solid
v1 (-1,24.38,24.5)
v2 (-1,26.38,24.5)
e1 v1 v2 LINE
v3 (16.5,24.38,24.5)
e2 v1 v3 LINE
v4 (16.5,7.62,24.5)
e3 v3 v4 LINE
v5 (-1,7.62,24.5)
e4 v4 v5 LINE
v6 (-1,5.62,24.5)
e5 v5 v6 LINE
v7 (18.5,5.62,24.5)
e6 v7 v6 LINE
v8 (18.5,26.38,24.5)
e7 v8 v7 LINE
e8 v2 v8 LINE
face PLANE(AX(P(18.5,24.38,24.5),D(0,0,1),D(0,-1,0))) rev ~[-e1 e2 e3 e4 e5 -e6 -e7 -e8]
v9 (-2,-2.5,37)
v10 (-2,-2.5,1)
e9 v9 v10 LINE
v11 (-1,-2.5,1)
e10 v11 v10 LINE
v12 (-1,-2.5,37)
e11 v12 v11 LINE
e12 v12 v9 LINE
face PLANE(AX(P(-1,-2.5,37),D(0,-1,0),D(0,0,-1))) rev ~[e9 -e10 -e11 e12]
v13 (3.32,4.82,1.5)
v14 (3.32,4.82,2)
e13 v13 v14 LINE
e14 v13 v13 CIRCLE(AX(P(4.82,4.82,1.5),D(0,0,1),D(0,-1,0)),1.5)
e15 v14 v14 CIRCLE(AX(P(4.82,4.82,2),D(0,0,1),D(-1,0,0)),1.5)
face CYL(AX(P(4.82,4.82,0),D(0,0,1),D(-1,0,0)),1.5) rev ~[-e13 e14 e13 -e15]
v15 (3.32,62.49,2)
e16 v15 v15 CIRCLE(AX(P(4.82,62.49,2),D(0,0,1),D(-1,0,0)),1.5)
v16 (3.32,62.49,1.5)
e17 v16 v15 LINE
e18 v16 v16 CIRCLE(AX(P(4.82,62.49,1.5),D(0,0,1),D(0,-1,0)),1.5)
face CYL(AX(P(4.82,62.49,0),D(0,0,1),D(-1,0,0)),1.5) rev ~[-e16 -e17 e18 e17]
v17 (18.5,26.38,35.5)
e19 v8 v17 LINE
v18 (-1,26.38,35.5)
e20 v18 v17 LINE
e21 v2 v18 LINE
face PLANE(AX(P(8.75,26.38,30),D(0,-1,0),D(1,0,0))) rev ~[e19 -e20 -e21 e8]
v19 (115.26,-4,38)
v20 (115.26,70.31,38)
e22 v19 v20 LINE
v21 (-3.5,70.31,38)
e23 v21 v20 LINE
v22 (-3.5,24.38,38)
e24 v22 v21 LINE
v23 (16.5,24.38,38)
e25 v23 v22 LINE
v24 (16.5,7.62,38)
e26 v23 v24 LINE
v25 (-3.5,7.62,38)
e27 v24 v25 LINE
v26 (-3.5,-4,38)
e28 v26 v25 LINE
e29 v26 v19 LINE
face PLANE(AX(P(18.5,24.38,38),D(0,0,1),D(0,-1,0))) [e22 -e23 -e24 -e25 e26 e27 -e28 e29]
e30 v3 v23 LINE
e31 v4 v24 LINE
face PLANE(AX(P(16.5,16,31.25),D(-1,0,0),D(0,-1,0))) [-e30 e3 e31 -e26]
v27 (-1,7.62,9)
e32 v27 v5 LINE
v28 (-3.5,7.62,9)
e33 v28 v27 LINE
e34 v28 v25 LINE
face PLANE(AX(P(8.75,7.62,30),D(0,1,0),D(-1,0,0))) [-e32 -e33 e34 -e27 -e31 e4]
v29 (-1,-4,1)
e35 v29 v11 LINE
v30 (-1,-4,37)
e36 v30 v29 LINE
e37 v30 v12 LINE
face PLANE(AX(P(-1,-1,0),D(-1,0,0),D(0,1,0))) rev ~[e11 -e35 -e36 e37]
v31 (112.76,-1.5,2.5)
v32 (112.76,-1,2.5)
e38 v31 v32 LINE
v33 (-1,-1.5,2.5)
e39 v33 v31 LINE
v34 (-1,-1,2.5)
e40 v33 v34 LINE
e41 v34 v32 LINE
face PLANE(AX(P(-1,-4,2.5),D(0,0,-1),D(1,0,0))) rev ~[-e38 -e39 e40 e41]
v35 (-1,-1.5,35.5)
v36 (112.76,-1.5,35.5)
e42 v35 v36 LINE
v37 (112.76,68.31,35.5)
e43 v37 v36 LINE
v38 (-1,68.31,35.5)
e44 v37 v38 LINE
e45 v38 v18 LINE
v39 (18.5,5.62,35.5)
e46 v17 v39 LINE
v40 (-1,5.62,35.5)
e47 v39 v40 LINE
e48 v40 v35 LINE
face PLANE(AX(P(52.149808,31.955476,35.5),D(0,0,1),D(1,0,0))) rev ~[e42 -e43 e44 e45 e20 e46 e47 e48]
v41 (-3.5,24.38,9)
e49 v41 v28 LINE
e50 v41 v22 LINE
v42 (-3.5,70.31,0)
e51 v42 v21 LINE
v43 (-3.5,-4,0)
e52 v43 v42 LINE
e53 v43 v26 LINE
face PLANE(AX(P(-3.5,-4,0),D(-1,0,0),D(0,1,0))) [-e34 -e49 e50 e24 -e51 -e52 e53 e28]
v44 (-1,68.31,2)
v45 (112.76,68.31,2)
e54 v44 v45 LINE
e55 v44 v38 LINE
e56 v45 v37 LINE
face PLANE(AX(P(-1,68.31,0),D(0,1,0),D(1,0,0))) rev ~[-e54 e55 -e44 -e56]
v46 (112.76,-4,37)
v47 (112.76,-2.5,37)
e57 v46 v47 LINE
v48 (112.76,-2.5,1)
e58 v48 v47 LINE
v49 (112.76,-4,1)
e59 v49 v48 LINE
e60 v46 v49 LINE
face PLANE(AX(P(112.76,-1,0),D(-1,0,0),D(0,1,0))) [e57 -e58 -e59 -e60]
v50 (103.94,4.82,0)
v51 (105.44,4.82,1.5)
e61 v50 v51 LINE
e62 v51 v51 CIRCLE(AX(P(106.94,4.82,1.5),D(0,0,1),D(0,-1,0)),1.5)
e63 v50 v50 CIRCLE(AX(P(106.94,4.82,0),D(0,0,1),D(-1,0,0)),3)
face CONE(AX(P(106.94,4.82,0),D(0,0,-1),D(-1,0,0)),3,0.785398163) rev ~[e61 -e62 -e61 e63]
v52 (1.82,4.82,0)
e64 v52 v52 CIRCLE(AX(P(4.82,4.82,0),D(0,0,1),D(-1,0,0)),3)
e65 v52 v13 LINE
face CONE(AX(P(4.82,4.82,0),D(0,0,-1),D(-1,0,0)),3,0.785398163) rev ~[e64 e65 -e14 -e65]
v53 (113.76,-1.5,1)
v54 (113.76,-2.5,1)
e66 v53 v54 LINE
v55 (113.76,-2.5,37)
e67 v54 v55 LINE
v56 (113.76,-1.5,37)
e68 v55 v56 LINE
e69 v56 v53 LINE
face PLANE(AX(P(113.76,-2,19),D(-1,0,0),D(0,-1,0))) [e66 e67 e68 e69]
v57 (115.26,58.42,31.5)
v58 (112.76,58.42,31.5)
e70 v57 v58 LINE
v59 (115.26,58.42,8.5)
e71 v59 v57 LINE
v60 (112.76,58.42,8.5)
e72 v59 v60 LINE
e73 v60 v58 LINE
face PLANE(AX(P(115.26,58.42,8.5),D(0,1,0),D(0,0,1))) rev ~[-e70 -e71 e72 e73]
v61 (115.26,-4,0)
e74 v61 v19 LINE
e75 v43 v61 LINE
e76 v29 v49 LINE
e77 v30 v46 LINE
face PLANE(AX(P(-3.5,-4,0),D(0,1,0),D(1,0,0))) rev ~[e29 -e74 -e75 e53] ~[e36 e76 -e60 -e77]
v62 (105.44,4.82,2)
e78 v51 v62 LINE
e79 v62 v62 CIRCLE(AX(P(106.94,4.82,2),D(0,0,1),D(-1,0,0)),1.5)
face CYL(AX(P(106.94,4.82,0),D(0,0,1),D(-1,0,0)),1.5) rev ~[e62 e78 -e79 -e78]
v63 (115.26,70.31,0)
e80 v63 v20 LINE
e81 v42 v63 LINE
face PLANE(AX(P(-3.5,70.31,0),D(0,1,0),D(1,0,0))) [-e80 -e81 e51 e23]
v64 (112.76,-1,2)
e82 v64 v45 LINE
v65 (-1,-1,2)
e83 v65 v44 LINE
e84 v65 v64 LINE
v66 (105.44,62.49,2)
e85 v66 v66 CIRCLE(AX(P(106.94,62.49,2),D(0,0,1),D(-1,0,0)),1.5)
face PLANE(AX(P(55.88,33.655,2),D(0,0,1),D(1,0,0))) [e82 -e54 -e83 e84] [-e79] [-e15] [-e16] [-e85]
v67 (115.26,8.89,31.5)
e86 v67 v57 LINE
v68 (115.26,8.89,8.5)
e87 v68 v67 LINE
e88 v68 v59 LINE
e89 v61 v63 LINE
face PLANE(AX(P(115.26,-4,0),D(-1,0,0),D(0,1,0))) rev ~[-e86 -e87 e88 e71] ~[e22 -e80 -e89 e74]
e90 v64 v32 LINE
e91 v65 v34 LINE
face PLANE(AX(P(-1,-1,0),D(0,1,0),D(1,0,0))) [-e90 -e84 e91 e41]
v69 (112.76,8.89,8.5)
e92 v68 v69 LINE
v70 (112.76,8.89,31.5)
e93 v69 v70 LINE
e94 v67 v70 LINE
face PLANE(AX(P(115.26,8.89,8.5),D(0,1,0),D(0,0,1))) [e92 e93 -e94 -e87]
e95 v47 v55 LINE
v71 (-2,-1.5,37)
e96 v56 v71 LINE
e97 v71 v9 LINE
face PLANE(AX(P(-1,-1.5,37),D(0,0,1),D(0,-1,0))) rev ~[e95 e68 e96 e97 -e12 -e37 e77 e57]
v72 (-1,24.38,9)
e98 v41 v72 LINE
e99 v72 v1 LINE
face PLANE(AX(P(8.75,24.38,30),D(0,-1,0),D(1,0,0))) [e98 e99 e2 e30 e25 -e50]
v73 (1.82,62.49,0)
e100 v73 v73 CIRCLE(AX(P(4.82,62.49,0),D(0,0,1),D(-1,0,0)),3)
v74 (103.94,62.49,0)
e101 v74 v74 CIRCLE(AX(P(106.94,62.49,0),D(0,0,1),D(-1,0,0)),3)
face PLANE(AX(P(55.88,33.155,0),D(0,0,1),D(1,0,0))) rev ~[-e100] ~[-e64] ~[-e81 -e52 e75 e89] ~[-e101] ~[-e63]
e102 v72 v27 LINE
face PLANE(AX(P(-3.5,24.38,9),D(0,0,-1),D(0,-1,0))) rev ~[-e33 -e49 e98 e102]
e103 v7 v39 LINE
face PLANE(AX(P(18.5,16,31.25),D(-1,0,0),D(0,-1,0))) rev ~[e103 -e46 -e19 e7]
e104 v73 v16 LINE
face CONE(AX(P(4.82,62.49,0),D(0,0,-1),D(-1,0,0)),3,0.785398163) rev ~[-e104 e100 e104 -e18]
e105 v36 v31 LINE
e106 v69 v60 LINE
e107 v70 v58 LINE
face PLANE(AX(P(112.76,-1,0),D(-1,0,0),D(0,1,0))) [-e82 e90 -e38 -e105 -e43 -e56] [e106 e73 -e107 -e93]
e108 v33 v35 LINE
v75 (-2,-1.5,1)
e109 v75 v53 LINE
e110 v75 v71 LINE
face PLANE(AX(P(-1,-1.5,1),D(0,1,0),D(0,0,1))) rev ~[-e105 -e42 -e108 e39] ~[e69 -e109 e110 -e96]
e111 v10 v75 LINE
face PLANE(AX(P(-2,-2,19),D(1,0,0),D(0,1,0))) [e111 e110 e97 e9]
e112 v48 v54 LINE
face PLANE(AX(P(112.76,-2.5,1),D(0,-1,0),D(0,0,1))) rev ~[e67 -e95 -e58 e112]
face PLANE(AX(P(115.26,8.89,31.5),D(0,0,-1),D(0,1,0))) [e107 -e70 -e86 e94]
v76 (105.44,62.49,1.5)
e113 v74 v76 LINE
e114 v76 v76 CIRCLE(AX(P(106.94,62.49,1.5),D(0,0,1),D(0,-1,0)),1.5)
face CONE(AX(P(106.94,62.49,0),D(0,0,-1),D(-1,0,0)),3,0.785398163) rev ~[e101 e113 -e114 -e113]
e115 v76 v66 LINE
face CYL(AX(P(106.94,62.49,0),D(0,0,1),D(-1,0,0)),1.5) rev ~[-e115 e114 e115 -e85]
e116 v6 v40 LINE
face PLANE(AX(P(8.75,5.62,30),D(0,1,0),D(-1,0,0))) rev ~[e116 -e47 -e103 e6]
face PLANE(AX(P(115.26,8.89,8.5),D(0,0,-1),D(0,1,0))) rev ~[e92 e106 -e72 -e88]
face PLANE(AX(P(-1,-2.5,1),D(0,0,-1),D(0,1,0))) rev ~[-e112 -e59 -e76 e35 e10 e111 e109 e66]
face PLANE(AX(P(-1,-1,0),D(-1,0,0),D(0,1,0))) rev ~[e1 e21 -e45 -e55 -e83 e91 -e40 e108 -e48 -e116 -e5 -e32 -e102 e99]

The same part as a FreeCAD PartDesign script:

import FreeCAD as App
import Part
import Sketcher
from FreeCAD import Vector
Q = App.Units.Quantity


def add_polygon(sketch, points):
    """Adds a closed chain of lines whose ends are joined by coincident constraints."""
    first, n = sketch.GeometryCount, len(points)
    for a, b in zip(points, points[1:] + points[:1]):
        sketch.addGeometry(Part.LineSegment(App.Vector(*a, 0), App.Vector(*b, 0)), False)
    for i in range(n):
        sketch.addConstraint(Sketcher.Constraint("Coincident", first + i, 2, first + (i + 1) % n, 1))

doc = App.newDocument("Part")
body = doc.addObject("PartDesign::Body", "Body")

sketch1 = body.newObject("Sketcher::SketchObject", "Sketch")
sketch1.AttachmentSupport = (doc.getObject("XY_Plane"), [""])
sketch1.MapMode = "FlatFace"
add_polygon(sketch1, [(-1, 68), (-1, -1), (113, -1), (113, 68)])
sketch1.addConstraint(Sketcher.Constraint("Vertical", 0))
sketch1.addConstraint(Sketcher.Constraint("Horizontal", 1))
sketch1.addConstraint(Sketcher.Constraint("Vertical", 2))
sketch1.addConstraint(Sketcher.Constraint("Horizontal", 3))
sketch1.addConstraint(Sketcher.Constraint("DistanceX", 0, 2, -1, 1, Q("1 mm")))
sketch1.addConstraint(Sketcher.Constraint("DistanceY", 0, 2, -1, 1, Q("1 mm")))
sketch1.addConstraint(Sketcher.Constraint("DistanceX", 1, 1, 1, 2, Q("113.76 mm")))
sketch1.addConstraint(Sketcher.Constraint("DistanceY", 0, 2, 0, 1, Q("69.31 mm")))
pad1 = body.newObject("PartDesign::Pad", "Pad")
pad1.Profile = sketch1
pad1.Length = 2

sketch2 = body.newObject("Sketcher::SketchObject", "Sketch001")
sketch2.AttachmentSupport = (doc.getObject("XY_Plane"), [""])
sketch2.MapMode = "FlatFace"
add_polygon(sketch2, [(-4, 70), (-4, -4), (115, -4), (115, 70)])
add_polygon(sketch2, [(113, -1), (-1, -1), (-1, 68), (113, 68)])
sketch2.addConstraint(Sketcher.Constraint("Vertical", 0))
sketch2.addConstraint(Sketcher.Constraint("Horizontal", 1))
sketch2.addConstraint(Sketcher.Constraint("Vertical", 2))
sketch2.addConstraint(Sketcher.Constraint("Horizontal", 3))
sketch2.addConstraint(Sketcher.Constraint("Horizontal", 4))
sketch2.addConstraint(Sketcher.Constraint("Vertical", 5))
sketch2.addConstraint(Sketcher.Constraint("Horizontal", 6))
sketch2.addConstraint(Sketcher.Constraint("Vertical", 7))
sketch2.addConstraint(Sketcher.Constraint("DistanceY", 0, 2, -1, 1, Q("4 mm")))
sketch2.addConstraint(Sketcher.Constraint("DistanceX", 4, 2, -1, 1, Q("1 mm")))
sketch2.addConstraint(Sketcher.Constraint("DistanceY", 4, 2, -1, 1, Q("1 mm")))
sketch2.addConstraint(Sketcher.Constraint("DistanceY", 5, 2, 3, 2, Q("2 mm")))
sketch2.addConstraint(Sketcher.Constraint("DistanceX", 1, 1, 1, 2, Q("118.76 mm")))
sketch2.addConstraint(Sketcher.Constraint("DistanceX", 4, 2, 4, 1, Q("113.76 mm")))
sketch2.addConstraint(Sketcher.Constraint("DistanceY", 0, 2, 0, 1, Q("74.31 mm")))
sketch2.addConstraint(Sketcher.Constraint("DistanceX", 0, 2, -1, 1, Q("3.5 mm")))
pad2 = body.newObject("PartDesign::Pad", "Pad001")
pad2.Profile = sketch2
pad2.Length = 38

sketch3 = body.newObject("Sketcher::SketchObject", "Sketch002")
sketch3.AttachmentSupport = (doc.getObject("YZ_Plane"), [""])
sketch3.MapMode = "FlatFace"
sketch3.AttachmentOffset = App.Placement(Vector(0, 0, 115.26), App.Rotation())
add_polygon(sketch3, [(9, 32), (9, 8), (58, 8), (58, 32)])
sketch3.addConstraint(Sketcher.Constraint("Vertical", 0))
sketch3.addConstraint(Sketcher.Constraint("Horizontal", 1))
sketch3.addConstraint(Sketcher.Constraint("Vertical", 2))
sketch3.addConstraint(Sketcher.Constraint("Horizontal", 3))
sketch3.addConstraint(Sketcher.Constraint("DistanceY", 0, 2, 0, 1, Q("23 mm")))
sketch3.addConstraint(Sketcher.Constraint("DistanceX", 1, 1, 1, 2, Q("49.53 mm")))
sketch3.addConstraint(Sketcher.Constraint("DistanceY", -1, 1, 0, 2, Q("8.5 mm")))
sketch3.addConstraint(Sketcher.Constraint("DistanceX", -1, 1, 0, 2, Q("8.89 mm")))
pocket1 = body.newObject("PartDesign::Pocket", "Pocket")
pocket1.Profile = sketch3
pocket1.Length = 2.5

sketch4 = body.newObject("Sketcher::SketchObject", "Sketch003")
sketch4.AttachmentSupport = (doc.getObject("YZ_Plane"), [""])
sketch4.MapMode = "FlatFace"
sketch4.AttachmentOffset = App.Placement(Vector(0, 0, -3.5), App.Rotation())
add_polygon(sketch4, [(24, 38), (24, 9), (8, 9), (8, 38)])
sketch4.addConstraint(Sketcher.Constraint("Vertical", 0))
sketch4.addConstraint(Sketcher.Constraint("Horizontal", 1))
sketch4.addConstraint(Sketcher.Constraint("Vertical", 2))
sketch4.addConstraint(Sketcher.Constraint("Horizontal", 3))
sketch4.addConstraint(Sketcher.Constraint("DistanceY", 0, 2, 0, 1, Q("29 mm")))
sketch4.addConstraint(Sketcher.Constraint("DistanceY", -1, 1, 0, 2, Q("9 mm")))
sketch4.addConstraint(Sketcher.Constraint("DistanceX", 1, 2, 1, 1, Q("16.76 mm")))
sketch4.addConstraint(Sketcher.Constraint("DistanceX", -1, 1, 0, 2, Q("24.38 mm")))
pocket2 = body.newObject("PartDesign::Pocket", "Pocket001")
pocket2.Profile = sketch4
pocket2.Length = 2.5
pocket2.Reversed = True

sketch5 = body.newObject("Sketcher::SketchObject", "Sketch004")
sketch5.AttachmentSupport = (doc.getObject("XY_Plane"), [""])
sketch5.MapMode = "FlatFace"
sketch5.AttachmentOffset = App.Placement(Vector(0, 0, 38), App.Rotation())
add_polygon(sketch5, [(-1, 8), (-1, -1), (113, -1), (113, 68), (-1, 68), (-1, 24), (18, 24), (18, 8)])
sketch5.addConstraint(Sketcher.Constraint("Vertical", 0))
sketch5.addConstraint(Sketcher.Constraint("Horizontal", 1))
sketch5.addConstraint(Sketcher.Constraint("Vertical", 2))
sketch5.addConstraint(Sketcher.Constraint("Horizontal", 3))
sketch5.addConstraint(Sketcher.Constraint("Vertical", 4))
sketch5.addConstraint(Sketcher.Constraint("Horizontal", 5))
sketch5.addConstraint(Sketcher.Constraint("Vertical", 6))
sketch5.addConstraint(Sketcher.Constraint("Horizontal", 7))
sketch5.addConstraint(Sketcher.Constraint("Vertical", 0, 2, 3, 2))
sketch5.addConstraint(Sketcher.Constraint("DistanceX", 5, 1, 5, 2, Q("19.5 mm")))
sketch5.addConstraint(Sketcher.Constraint("DistanceX", 0, 2, -1, 1, Q("1 mm")))
sketch5.addConstraint(Sketcher.Constraint("DistanceY", 0, 2, -1, 1, Q("1 mm")))
sketch5.addConstraint(Sketcher.Constraint("DistanceX", 1, 1, 1, 2, Q("113.76 mm")))
sketch5.addConstraint(Sketcher.Constraint("DistanceY", 0, 2, 0, 1, Q("8.62 mm")))
sketch5.addConstraint(Sketcher.Constraint("DistanceY", 2, 1, 2, 2, Q("69.31 mm")))
sketch5.addConstraint(Sketcher.Constraint("DistanceY", 4, 2, 4, 1, Q("43.93 mm")))
pad3 = body.newObject("PartDesign::Pad", "Pad002")
pad3.Profile = sketch5
pad3.Length = 2.5
pad3.Reversed = True

sketch6 = body.newObject("Sketcher::SketchObject", "Sketch005")
sketch6.AttachmentSupport = (doc.getObject("XZ_Plane"), [""])
sketch6.MapMode = "FlatFace"
sketch6.AttachmentOffset = App.Placement(Vector(0, 0, -24.38), App.Rotation())
add_polygon(sketch6, [(-1, 36), (-1, 24), (18, 24), (18, 36)])
sketch6.addConstraint(Sketcher.Constraint("Vertical", 0))
sketch6.addConstraint(Sketcher.Constraint("Horizontal", 1))
sketch6.addConstraint(Sketcher.Constraint("Vertical", 2))
sketch6.addConstraint(Sketcher.Constraint("Horizontal", 3))
sketch6.addConstraint(Sketcher.Constraint("DistanceY", 0, 2, 0, 1, Q("11 mm")))
sketch6.addConstraint(Sketcher.Constraint("DistanceX", 1, 1, 1, 2, Q("19.5 mm")))
sketch6.addConstraint(Sketcher.Constraint("DistanceX", 0, 2, -1, 1, Q("1 mm")))
sketch6.addConstraint(Sketcher.Constraint("DistanceY", -1, 1, 0, 2, Q("24.5 mm")))
pad4 = body.newObject("PartDesign::Pad", "Pad003")
pad4.Profile = sketch6
pad4.Length = 2
pad4.Reversed = True

sketch7 = body.newObject("Sketcher::SketchObject", "Sketch006")
sketch7.AttachmentSupport = (doc.getObject("XZ_Plane"), [""])
sketch7.MapMode = "FlatFace"
sketch7.AttachmentOffset = App.Placement(Vector(0, 0, -7.62), App.Rotation())
add_polygon(sketch7, [(18, 36), (18, 24), (-1, 24), (-1, 36)])
sketch7.addConstraint(Sketcher.Constraint("Vertical", 0))
sketch7.addConstraint(Sketcher.Constraint("Horizontal", 1))
sketch7.addConstraint(Sketcher.Constraint("Vertical", 2))
sketch7.addConstraint(Sketcher.Constraint("Horizontal", 3))
sketch7.addConstraint(Sketcher.Constraint("DistanceY", 0, 2, 0, 1, Q("11 mm")))
sketch7.addConstraint(Sketcher.Constraint("DistanceX", 1, 2, 1, 1, Q("19.5 mm")))
sketch7.addConstraint(Sketcher.Constraint("DistanceX", 1, 2, -1, 1, Q("1 mm")))
sketch7.addConstraint(Sketcher.Constraint("DistanceY", -1, 1, 0, 2, Q("24.5 mm")))
pad5 = body.newObject("PartDesign::Pad", "Pad004")
pad5.Profile = sketch7
pad5.Length = 2

sketch8 = body.newObject("Sketcher::SketchObject", "Sketch007")
sketch8.AttachmentSupport = (doc.getObject("YZ_Plane"), [""])
sketch8.MapMode = "FlatFace"
sketch8.AttachmentOffset = App.Placement(Vector(0, 0, 18.5), App.Rotation())
add_polygon(sketch8, [(24, 38), (24, 24), (8, 24), (8, 38)])
sketch8.addConstraint(Sketcher.Constraint("Vertical", 0))
sketch8.addConstraint(Sketcher.Constraint("Horizontal", 1))
sketch8.addConstraint(Sketcher.Constraint("Vertical", 2))
sketch8.addConstraint(Sketcher.Constraint("Horizontal", 3))
sketch8.addConstraint(Sketcher.Constraint("DistanceY", 0, 2, 0, 1, Q("13.5 mm")))
sketch8.addConstraint(Sketcher.Constraint("DistanceY", -1, 1, 2, 2, Q("38 mm")))
sketch8.addConstraint(Sketcher.Constraint("DistanceX", 1, 2, 1, 1, Q("16.76 mm")))
sketch8.addConstraint(Sketcher.Constraint("DistanceX", -1, 1, 0, 2, Q("24.38 mm")))
pad6 = body.newObject("PartDesign::Pad", "Pad005")
pad6.Profile = sketch8
pad6.Length = 2
pad6.Reversed = True

sketch9 = body.newObject("Sketcher::SketchObject", "Sketch008")
sketch9.AttachmentSupport = (doc.getObject("XZ_Plane"), [""])
sketch9.MapMode = "FlatFace"
sketch9.AttachmentOffset = App.Placement(Vector(0, 0, 4), App.Rotation())
add_polygon(sketch9, [(-1, 36), (-1, 2), (113, 2), (113, 36)])
sketch9.addConstraint(Sketcher.Constraint("Vertical", 0))
sketch9.addConstraint(Sketcher.Constraint("Horizontal", 1))
sketch9.addConstraint(Sketcher.Constraint("Vertical", 2))
sketch9.addConstraint(Sketcher.Constraint("Horizontal", 3))
sketch9.addConstraint(Sketcher.Constraint("DistanceY", 0, 2, 0, 1, Q("33 mm")))
sketch9.addConstraint(Sketcher.Constraint("DistanceX", 0, 2, -1, 1, Q("1 mm")))
sketch9.addConstraint(Sketcher.Constraint("DistanceX", 1, 1, 1, 2, Q("113.76 mm")))
sketch9.addConstraint(Sketcher.Constraint("DistanceY", -1, 1, 0, 2, Q("2.5 mm")))
pocket3 = body.newObject("PartDesign::Pocket", "Pocket002")
pocket3.Profile = sketch9
pocket3.Length = 3

sketch10 = body.newObject("Sketcher::SketchObject", "Sketch009")
sketch10.AttachmentSupport = (doc.getObject("XZ_Plane"), [""])
sketch10.MapMode = "FlatFace"
sketch10.AttachmentOffset = App.Placement(Vector(0, 0, 4), App.Rotation())
add_polygon(sketch10, [(-1, 37), (-1, 35.5), (112.8, 35.5), (112.8, 37)])
add_polygon(sketch10, [(-1, 2.5), (-1, 1), (112.8, 1), (112.8, 2.5)])
sketch10.addConstraint(Sketcher.Constraint("Vertical", 0))
sketch10.addConstraint(Sketcher.Constraint("Horizontal", 1))
sketch10.addConstraint(Sketcher.Constraint("Vertical", 2))
sketch10.addConstraint(Sketcher.Constraint("Horizontal", 3))
sketch10.addConstraint(Sketcher.Constraint("Vertical", 4))
sketch10.addConstraint(Sketcher.Constraint("Horizontal", 5))
sketch10.addConstraint(Sketcher.Constraint("Vertical", 6))
sketch10.addConstraint(Sketcher.Constraint("Horizontal", 7))
sketch10.addConstraint(Sketcher.Constraint("Vertical", 3, 2, 4, 2))
sketch10.addConstraint(Sketcher.Constraint("Vertical", 2, 2, 5, 2))
sketch10.addConstraint(Sketcher.Constraint("Equal", 2, 4))
sketch10.addConstraint(Sketcher.Constraint("DistanceY", 0, 2, 0, 1, Q("1.5 mm")))
sketch10.addConstraint(Sketcher.Constraint("DistanceX", 0, 2, -1, 1, Q("1 mm")))
sketch10.addConstraint(Sketcher.Constraint("DistanceY", -1, 1, 2, 2, Q("37 mm")))
sketch10.addConstraint(Sketcher.Constraint("DistanceY", -1, 1, 4, 2, Q("1 mm")))
sketch10.addConstraint(Sketcher.Constraint("DistanceX", 1, 1, 1, 2, Q("113.76 mm")))
pocket4 = body.newObject("PartDesign::Pocket", "Pocket003")
pocket4.Profile = sketch10
pocket4.Length = 2.5

sketch11 = body.newObject("Sketcher::SketchObject", "Sketch010")
sketch11.AttachmentSupport = (doc.getObject("YZ_Plane"), [""])
sketch11.MapMode = "FlatFace"
sketch11.AttachmentOffset = App.Placement(Vector(0, 0, -1), App.Rotation())
add_polygon(sketch11, [(-1.5, 37), (-2.5, 37), (-2.5, 1), (-1.5, 1)])
sketch11.addConstraint(Sketcher.Constraint("Horizontal", 0))
sketch11.addConstraint(Sketcher.Constraint("Vertical", 1))
sketch11.addConstraint(Sketcher.Constraint("Horizontal", 2))
sketch11.addConstraint(Sketcher.Constraint("Vertical", 3))
sketch11.addConstraint(Sketcher.Constraint("DistanceX", 0, 2, 0, 1, Q("1 mm")))
sketch11.addConstraint(Sketcher.Constraint("DistanceY", 1, 2, 1, 1, Q("36 mm")))
sketch11.addConstraint(Sketcher.Constraint("DistanceY", -1, 1, 0, 2, Q("37 mm")))
sketch11.addConstraint(Sketcher.Constraint("DistanceX", 0, 2, -1, 1, Q("2.5 mm")))
pocket5 = body.newObject("PartDesign::Pocket", "Pocket004")
pocket5.Profile = sketch11
pocket5.Length = 1

sketch12 = body.newObject("Sketcher::SketchObject", "Sketch011")
sketch12.AttachmentSupport = (doc.getObject("YZ_Plane"), [""])
sketch12.MapMode = "FlatFace"
sketch12.AttachmentOffset = App.Placement(Vector(0, 0, 112.76), App.Rotation())
add_polygon(sketch12, [(-2.5, 37), (-1.5, 37), (-1.5, 1), (-2.5, 1)])
sketch12.addConstraint(Sketcher.Constraint("Horizontal", 0))
sketch12.addConstraint(Sketcher.Constraint("Vertical", 1))
sketch12.addConstraint(Sketcher.Constraint("Horizontal", 2))
sketch12.addConstraint(Sketcher.Constraint("Vertical", 3))
sketch12.addConstraint(Sketcher.Constraint("DistanceX", 0, 1, 0, 2, Q("1 mm")))
sketch12.addConstraint(Sketcher.Constraint("DistanceY", 1, 2, 1, 1, Q("36 mm")))
sketch12.addConstraint(Sketcher.Constraint("DistanceY", -1, 1, 0, 2, Q("37 mm")))
sketch12.addConstraint(Sketcher.Constraint("DistanceX", 0, 2, -1, 1, Q("1.5 mm")))
pocket6 = body.newObject("PartDesign::Pocket", "Pocket005")
pocket6.Profile = sketch12
pocket6.Length = 1
pocket6.Reversed = True

sketch13 = body.newObject("Sketcher::SketchObject", "Sketch012")
sketch13.AttachmentSupport = (doc.getObject("XY_Plane"), [""])
sketch13.MapMode = "FlatFace"
sketch13.addGeometry(Part.Circle(Vector(4.8, 4.8, 0), Vector(0, 0, 1), 1.5), False)
sketch13.addGeometry(Part.Circle(Vector(106.9, 4.8, 0), Vector(0, 0, 1), 1.5), False)
sketch13.addGeometry(Part.Circle(Vector(106.9, 62.5, 0), Vector(0, 0, 1), 1.5), False)
sketch13.addGeometry(Part.Circle(Vector(4.8, 62.5, 0), Vector(0, 0, 1), 1.5), False)
sketch13.addConstraint(Sketcher.Constraint("Equal", 0, 1))
sketch13.addConstraint(Sketcher.Constraint("Equal", 1, 2))
sketch13.addConstraint(Sketcher.Constraint("Equal", 2, 3))
sketch13.addConstraint(Sketcher.Constraint("Horizontal", 0, 3, 1, 3))
sketch13.addConstraint(Sketcher.Constraint("Horizontal", 2, 3, 3, 3))
sketch13.addConstraint(Sketcher.Constraint("Vertical", 1, 3, 2, 3))
sketch13.addConstraint(Sketcher.Constraint("Vertical", 0, 3, 3, 3))
sketch13.addConstraint(Sketcher.Constraint("Diameter", 0, Q("3 mm")))
sketch13.addConstraint(Sketcher.Constraint("DistanceX", -1, 1, 0, 3, Q("4.82 mm")))
sketch13.addConstraint(Sketcher.Constraint("DistanceY", -1, 1, 0, 3, Q("4.82 mm")))
sketch13.addConstraint(Sketcher.Constraint("DistanceX", -1, 1, 1, 3, Q("106.94 mm")))
sketch13.addConstraint(Sketcher.Constraint("DistanceY", -1, 1, 2, 3, Q("62.49 mm")))
doc.recompute()
hole = body.newObject("PartDesign::Hole", "Hole")
hole.Profile = sketch13
hole.ThreadType = "None"
hole.Diameter = 3
hole.DepthType = "Dimension"
hole.Depth = 5
hole.DrillPoint = "Angled"
hole.DrillPointAngle = 118
hole.HoleCutType = "Countersink"
hole.HoleCutDiameter = 6
hole.HoleCutCountersinkAngle = 90
hole.Reversed = True

doc.recompute()
